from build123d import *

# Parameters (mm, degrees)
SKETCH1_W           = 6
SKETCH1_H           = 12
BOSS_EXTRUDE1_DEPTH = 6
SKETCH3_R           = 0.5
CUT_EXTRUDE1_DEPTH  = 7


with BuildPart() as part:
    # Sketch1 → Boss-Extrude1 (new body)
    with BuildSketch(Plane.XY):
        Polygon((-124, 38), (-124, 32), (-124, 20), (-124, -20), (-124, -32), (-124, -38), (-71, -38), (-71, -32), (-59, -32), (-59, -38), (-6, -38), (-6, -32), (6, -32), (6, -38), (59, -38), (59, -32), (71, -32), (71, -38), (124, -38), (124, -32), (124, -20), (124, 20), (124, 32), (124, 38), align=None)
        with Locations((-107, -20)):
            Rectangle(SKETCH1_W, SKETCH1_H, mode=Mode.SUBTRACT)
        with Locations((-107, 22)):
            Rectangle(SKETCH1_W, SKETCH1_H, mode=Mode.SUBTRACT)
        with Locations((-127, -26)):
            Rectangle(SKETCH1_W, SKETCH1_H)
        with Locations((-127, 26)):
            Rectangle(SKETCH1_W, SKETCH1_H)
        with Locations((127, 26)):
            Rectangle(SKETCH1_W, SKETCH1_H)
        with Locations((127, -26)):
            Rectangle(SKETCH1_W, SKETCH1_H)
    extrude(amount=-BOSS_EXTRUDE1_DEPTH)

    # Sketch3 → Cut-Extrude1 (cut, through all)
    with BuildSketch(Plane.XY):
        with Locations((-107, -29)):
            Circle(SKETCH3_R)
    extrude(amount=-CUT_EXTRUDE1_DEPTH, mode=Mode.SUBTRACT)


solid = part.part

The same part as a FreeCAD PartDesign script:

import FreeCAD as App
import Part
import Sketcher
Q = App.Units.Quantity

doc = App.newDocument("Part")
body = doc.addObject("PartDesign::Body", "Body")

# Sketch on XY plane
sketch1 = body.newObject("Sketcher::SketchObject", "Sketch")
sketch1.AttachmentSupport = (doc.getObject("XY_Plane"), [""])
sketch1.MapMode = "FlatFace"
sketch1.addGeometry([
    Part.LineSegment(App.Vector(-124, 38, 0), App.Vector(-124, 32, 0)),  # 0
    Part.LineSegment(App.Vector(-124, 32, 0), App.Vector(-130, 32, 0)),  # 1
    Part.LineSegment(App.Vector(-130, 32, 0), App.Vector(-130, 20, 0)),  # 2
    Part.LineSegment(App.Vector(-130, 20, 0), App.Vector(-124, 20, 0)),  # 3
    Part.LineSegment(App.Vector(-124, 20, 0), App.Vector(-124, -20, 0)),  # 4
    Part.LineSegment(App.Vector(-124, -20, 0), App.Vector(-130, -20, 0)),  # 5
    Part.LineSegment(App.Vector(-130, -20, 0), App.Vector(-130, -32, 0)),  # 6
    Part.LineSegment(App.Vector(-130, -32, 0), App.Vector(-124, -32, 0)),  # 7
    Part.LineSegment(App.Vector(-124, -32, 0), App.Vector(-124, -38, 0)),  # 8
    Part.LineSegment(App.Vector(-124, -38, 0), App.Vector(-71, -38, 0)),  # 9
    Part.LineSegment(App.Vector(-71, -38, 0), App.Vector(-71, -32, 0)),  # 10
    Part.LineSegment(App.Vector(-71, -32, 0), App.Vector(-59, -32, 0)),  # 11
    Part.LineSegment(App.Vector(-59, -32, 0), App.Vector(-59, -38, 0)),  # 12
    Part.LineSegment(App.Vector(-59, -38, 0), App.Vector(-6, -38, 0)),  # 13
    Part.LineSegment(App.Vector(-6, -38, 0), App.Vector(-6, -32, 0)),  # 14
    Part.LineSegment(App.Vector(-6, -32, 0), App.Vector(6, -32, 0)),  # 15
    Part.LineSegment(App.Vector(6, -32, 0), App.Vector(6, -38, 0)),  # 16
    Part.LineSegment(App.Vector(6, -38, 0), App.Vector(59, -38, 0)),  # 17
    Part.LineSegment(App.Vector(59, -38, 0), App.Vector(59, -32, 0)),  # 18
    Part.LineSegment(App.Vector(59, -32, 0), App.Vector(71, -32, 0)),  # 19
    Part.LineSegment(App.Vector(71, -32, 0), App.Vector(71, -38, 0)),  # 20
    Part.LineSegment(App.Vector(71, -38, 0), App.Vector(124, -38, 0)),  # 21
    Part.LineSegment(App.Vector(124, -38, 0), App.Vector(124, -32, 0)),  # 22
    Part.LineSegment(App.Vector(124, -32, 0), App.Vector(130, -32, 0)),  # 23
    Part.LineSegment(App.Vector(130, -32, 0), App.Vector(130, -20, 0)),  # 24
    Part.LineSegment(App.Vector(130, -20, 0), App.Vector(124, -20, 0)),  # 25
    Part.LineSegment(App.Vector(124, -20, 0), App.Vector(124, 20, 0)),  # 26
    Part.LineSegment(App.Vector(124, 20, 0), App.Vector(130, 20, 0)),  # 27
    Part.LineSegment(App.Vector(130, 20, 0), App.Vector(130, 32, 0)),  # 28
    Part.LineSegment(App.Vector(130, 32, 0), App.Vector(124, 32, 0)),  # 29
    Part.LineSegment(App.Vector(124, 32, 0), App.Vector(124, 38, 0)),  # 30
    Part.LineSegment(App.Vector(124, 38, 0), App.Vector(-124, 38, 0)),  # 31
    Part.LineSegment(App.Vector(-104, -26, 0), App.Vector(-110, -26, 0)),  # 32
    Part.LineSegment(App.Vector(-110, -26, 0), App.Vector(-110, -14, 0)),  # 33
    Part.LineSegment(App.Vector(-110, -14, 0), App.Vector(-104, -14, 0)),  # 34
    Part.LineSegment(App.Vector(-104, -14, 0), App.Vector(-104, -26, 0)),  # 35
    Part.LineSegment(App.Vector(-104, 16, 0), App.Vector(-110, 16, 0)),  # 36
    Part.LineSegment(App.Vector(-110, 16, 0), App.Vector(-110, 28, 0)),  # 37
    Part.LineSegment(App.Vector(-110, 28, 0), App.Vector(-104, 28, 0)),  # 38
    Part.LineSegment(App.Vector(-104, 28, 0), App.Vector(-104, 16, 0)),  # 39
], False)
sketch1.addConstraint([
    Sketcher.Constraint("Coincident", 0, 2, 1, 1),
    Sketcher.Constraint("Coincident", 1, 2, 2, 1),
    Sketcher.Constraint("Coincident", 2, 2, 3, 1),
    Sketcher.Constraint("Coincident", 3, 2, 4, 1),
    Sketcher.Constraint("Coincident", 4, 2, 5, 1),
    Sketcher.Constraint("Coincident", 5, 2, 6, 1),
    Sketcher.Constraint("Coincident", 6, 2, 7, 1),
    Sketcher.Constraint("Coincident", 7, 2, 8, 1),
    Sketcher.Constraint("Coincident", 8, 2, 9, 1),
    Sketcher.Constraint("Coincident", 9, 2, 10, 1),
    Sketcher.Constraint("Coincident", 10, 2, 11, 1),
    Sketcher.Constraint("Coincident", 11, 2, 12, 1),
    Sketcher.Constraint("Coincident", 12, 2, 13, 1),
    Sketcher.Constraint("Coincident", 13, 2, 14, 1),
    Sketcher.Constraint("Coincident", 14, 2, 15, 1),
    Sketcher.Constraint("Coincident", 15, 2, 16, 1),
    Sketcher.Constraint("Coincident", 16, 2, 17, 1),
    Sketcher.Constraint("Coincident", 17, 2, 18, 1),
    Sketcher.Constraint("Coincident", 18, 2, 19, 1),
    Sketcher.Constraint("Coincident", 19, 2, 20, 1),
    Sketcher.Constraint("Coincident", 20, 2, 21, 1),
    Sketcher.Constraint("Coincident", 21, 2, 22, 1),
    Sketcher.Constraint("Coincident", 22, 2, 23, 1),
    Sketcher.Constraint("Coincident", 23, 2, 24, 1),
    Sketcher.Constraint("Coincident", 24, 2, 25, 1),
    Sketcher.Constraint("Coincident", 25, 2, 26, 1),
    Sketcher.Constraint("Coincident", 26, 2, 27, 1),
    Sketcher.Constraint("Coincident", 27, 2, 28, 1),
    Sketcher.Constraint("Coincident", 28, 2, 29, 1),
    Sketcher.Constraint("Coincident", 29, 2, 30, 1),
    Sketcher.Constraint("Coincident", 30, 2, 31, 1),
    Sketcher.Constraint("Coincident", 31, 2, 0, 1),
    Sketcher.Constraint("Coincident", 32, 2, 33, 1),
    Sketcher.Constraint("Coincident", 33, 2, 34, 1),
    Sketcher.Constraint("Coincident", 34, 2, 35, 1),
    Sketcher.Constraint("Coincident", 35, 2, 32, 1),
    Sketcher.Constraint("Coincident", 36, 2, 37, 1),
    Sketcher.Constraint("Coincident", 37, 2, 38, 1),
    Sketcher.Constraint("Coincident", 38, 2, 39, 1),
    Sketcher.Constraint("Coincident", 39, 2, 36, 1),
    Sketcher.Constraint("Vertical", 0),
    Sketcher.Constraint("Horizontal", 1),
    Sketcher.Constraint("Vertical", 2),
    Sketcher.Constraint("Horizontal", 3),
    Sketcher.Constraint("Vertical", 4),
    Sketcher.Constraint("Horizontal", 5),
    Sketcher.Constraint("Vertical", 6),
    Sketcher.Constraint("Horizontal", 7),
    Sketcher.Constraint("Vertical", 8),
    Sketcher.Constraint("Horizontal", 9),
    Sketcher.Constraint("Vertical", 10),
    Sketcher.Constraint("Horizontal", 11),
    Sketcher.Constraint("Vertical", 12),
    Sketcher.Constraint("Horizontal", 13),
    Sketcher.Constraint("Vertical", 14),
    Sketcher.Constraint("Horizontal", 15),
    Sketcher.Constraint("Vertical", 16),
    Sketcher.Constraint("Horizontal", 17),
    Sketcher.Constraint("Vertical", 18),
    Sketcher.Constraint("Horizontal", 19),
    Sketcher.Constraint("Vertical", 20),
    Sketcher.Constraint("Horizontal", 21),
    Sketcher.Constraint("Vertical", 22),
    Sketcher.Constraint("Horizontal", 23),
    Sketcher.Constraint("Vertical", 24),
    Sketcher.Constraint("Horizontal", 25),
    Sketcher.Constraint("Vertical", 26),
    Sketcher.Constraint("Horizontal", 27),
    Sketcher.Constraint("Vertical", 28),
    Sketcher.Constraint("Horizontal", 29),
    Sketcher.Constraint("Vertical", 30),
    Sketcher.Constraint("Horizontal", 31),
    Sketcher.Constraint("Horizontal", 32),
    Sketcher.Constraint("Vertical", 33),
    Sketcher.Constraint("Horizontal", 34),
    Sketcher.Constraint("Vertical", 35),
    Sketcher.Constraint("Horizontal", 36),
    Sketcher.Constraint("Vertical", 37),
    Sketcher.Constraint("Horizontal", 38),
    Sketcher.Constraint("Vertical", 39),
    Sketcher.Constraint("Symmetric", 0, 2, 22, 2, -1, 1),
    Sketcher.Constraint("Symmetric", 2, 2, 24, 2, -1, 1),
    Sketcher.Constraint("Symmetric", 4, 2, 26, 2, -1, 1),
    Sketcher.Constraint("Symmetric", 6, 2, 28, 2, -1, 1),
    Sketcher.Constraint("Symmetric", 8, 2, 30, 2, -1, 1),
    Sketcher.Constraint("Symmetric", 13, 2, 16, 2, -2),
    Sketcher.Constraint("Symmetric", 11, 2, 18, 2, -2),
    Sketcher.Constraint("Symmetric", 9, 2, 20, 2, -2),
    Sketcher.Constraint("Symmetric", 7, 2, 22, 2, -2),
    Sketcher.Constraint("Symmetric", 5, 2, 24, 2, -2),
    Sketcher.Constraint("Horizontal", 7, 2, 10, 2),
    Sketcher.Constraint("Horizontal", 9, 2, 12, 2),
    Sketcher.Constraint("Horizontal", 11, 2, 14, 2),
    Sketcher.Constraint("Vertical", 0, 2, 3, 2),
    Sketcher.Constraint("Vertical", 33, 2, 36, 2),
    Sketcher.Constraint("Vertical", 35, 2, 38, 2),
    Sketcher.Constraint("Equal", 9, 13),
    Sketcher.Constraint("Equal", 11, 15),
    Sketcher.Constraint("Equal", 29, 32),
    Sketcher.Constraint("Equal", 38, 0),
    Sketcher.Constraint("Equal", 19, 2),
    Sketcher.Constraint("Equal", 28, 33),
    Sketcher.Constraint("Equal", 35, 37),
    Sketcher.Constraint("DistanceX", 1, 2, 1, 1, Q("6 mm")),
    Sketcher.Constraint("DistanceX", 9, 1, 9, 2, Q("53 mm")),
    Sketcher.Constraint("DistanceX", 11, 1, 11, 2, Q("12 mm")),
    Sketcher.Constraint("DistanceY", 4, 2, 4, 1, Q("40 mm")),
    Sketcher.Constraint("DistanceX", 32, 2, -1, 1, Q("110 mm")),
    Sketcher.Constraint("DistanceY", 32, 2, -1, 1, Q("26 mm")),
    Sketcher.Constraint("DistanceY", -1, 1, 36, 2, Q("16 mm")),
])
pad1 = body.newObject("PartDesign::Pad", "Pad")
pad1.Profile = sketch1
pad1.Length = 6
pad1.Reversed = True

# Sketch on XY plane
sketch2 = body.newObject("Sketcher::SketchObject", "Sketch001")
sketch2.AttachmentSupport = (doc.getObject("XY_Plane"), [""])
sketch2.MapMode = "FlatFace"
sketch2.addGeometry(Part.Circle(App.Vector(-107, -29, 0), App.Vector(0, 0, 1), 0.5), False)
sketch2.addConstraint([
    Sketcher.Constraint("Diameter", 0, Q("1 mm")),
    Sketcher.Constraint("DistanceX", 0, 3, -1, 1, Q("107 mm")),
    Sketcher.Constraint("DistanceY", 0, 3, -1, 1, Q("29 mm")),
])
pocket1 = body.newObject("PartDesign::Pocket", "Pocket")
pocket1.Profile = sketch2
pocket1.Type = "ThroughAll"

doc.recompute()
